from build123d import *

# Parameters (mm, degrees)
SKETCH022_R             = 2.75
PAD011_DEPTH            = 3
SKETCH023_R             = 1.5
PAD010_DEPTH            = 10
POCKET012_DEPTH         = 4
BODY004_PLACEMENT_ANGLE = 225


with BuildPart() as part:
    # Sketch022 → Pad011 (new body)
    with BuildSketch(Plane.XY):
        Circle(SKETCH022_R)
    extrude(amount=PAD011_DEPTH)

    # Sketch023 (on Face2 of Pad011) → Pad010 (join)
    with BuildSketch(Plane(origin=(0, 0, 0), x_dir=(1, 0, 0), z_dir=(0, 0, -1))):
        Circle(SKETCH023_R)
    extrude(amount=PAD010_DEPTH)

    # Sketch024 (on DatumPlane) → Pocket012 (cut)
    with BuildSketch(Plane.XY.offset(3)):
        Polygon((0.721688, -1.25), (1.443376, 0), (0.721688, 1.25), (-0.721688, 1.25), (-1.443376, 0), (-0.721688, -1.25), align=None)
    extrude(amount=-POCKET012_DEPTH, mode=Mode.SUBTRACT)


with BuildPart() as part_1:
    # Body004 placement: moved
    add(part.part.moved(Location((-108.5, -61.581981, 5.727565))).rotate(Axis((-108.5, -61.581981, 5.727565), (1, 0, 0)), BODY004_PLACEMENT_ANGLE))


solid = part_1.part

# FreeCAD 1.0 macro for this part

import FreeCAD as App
import Part
import Sketcher
from FreeCAD import Vector
Q = App.Units.Quantity


def add_polygon(sketch, points):
    """Adds a closed chain of lines whose ends are joined by coincident constraints."""
    first, n = sketch.GeometryCount, len(points)
    for a, b in zip(points, points[1:] + points[:1]):
        sketch.addGeometry(Part.LineSegment(App.Vector(*a, 0), App.Vector(*b, 0)), False)
    for i in range(n):
        sketch.addConstraint(Sketcher.Constraint("Coincident", first + i, 2, first + (i + 1) % n, 1))

doc = App.newDocument("Part")
body = doc.addObject("PartDesign::Body", "Body")

sketch1 = doc.addObject("Sketcher::SketchObject", "Sketch")
body.addObject(sketch1)
sketch1.AttachmentSupport = (doc.XY_Plane, [""])
sketch1.MapMode = "FlatFace"
sketch1.addGeometry(Part.Circle(Vector(0, 0, 0), Vector(0, 0, 1), 2.8), False)
sketch1.addConstraint([
    Sketcher.Constraint("Coincident", 0, 3, -1, 1),
    Sketcher.Constraint("Diameter", 0, Q("5.5 mm")),
])
pad1 = doc.addObject("PartDesign::Pad", "Pad")
body.addObject(pad1)
pad1.Profile = sketch1
pad1.Length = 3

sketch2 = doc.addObject("Sketcher::SketchObject", "Sketch001")
body.addObject(sketch2)
sketch2.AttachmentSupport = (doc.XY_Plane, [""])
sketch2.MapMode = "FlatFace"
sketch2.addGeometry(Part.Circle(Vector(0, 0, 0), Vector(0, 0, 1), 1.5), False)
sketch2.addConstraint([
    Sketcher.Constraint("Coincident", 0, 3, -1, 1),
    Sketcher.Constraint("Diameter", 0, Q("3 mm")),
])
pad2 = doc.addObject("PartDesign::Pad", "Pad001")
body.addObject(pad2)
pad2.Profile = sketch2
pad2.Length = 10
pad2.Reversed = True

sketch3 = doc.addObject("Sketcher::SketchObject", "Sketch002")
body.addObject(sketch3)
sketch3.AttachmentSupport = (doc.XY_Plane, [""])
sketch3.MapMode = "FlatFace"
sketch3.AttachmentOffset = App.Placement(Vector(0, 0, 3), App.Rotation())
add_polygon(sketch3, [(0.7, -1.2), (1.4, 0), (0.7, 1.2), (-0.7, 1.2), (-1.4, 0), (-0.7, -1.2)])
sketch3.addConstraint([
    Sketcher.Constraint("Horizontal", 2),
    Sketcher.Constraint("Horizontal", 5),
    Sketcher.Constraint("Symmetric", 0, 2, 3, 2, -1, 1),
    Sketcher.Constraint("Symmetric", 1, 2, 4, 2, -1, 1),
    Sketcher.Constraint("PointOnObject", 0, 2, -1),
    Sketcher.Constraint("Parallel", 0, 3),
    Sketcher.Constraint("Vertical", 2, 2, 4, 2),
    Sketcher.Constraint("Angle", 0, Q("59.999994 deg")),
    Sketcher.Constraint("DistanceY", 4, 2, 2, 2, Q("2.5 mm")),
    Sketcher.Constraint("DistanceX", 2, 2, 2, 1, Q("1.443376 mm")),
])
pocket1 = doc.addObject("PartDesign::Pocket", "Pocket")
body.addObject(pocket1)
pocket1.Profile = sketch3
pocket1.Length = 4
body2 = doc.addObject("PartDesign::Body", "Body001")
doc.recompute()

body.Placement = App.Placement(Vector(-108.5, -61.581981, 5.727565), App.Rotation(Vector(1, 0, 0), 225))
boolean = doc.addObject("PartDesign::Boolean", "Boolean")
body2.addObject(boolean)
boolean.Type = "Fuse"
boolean.addObjects([body])

doc.recompute()
